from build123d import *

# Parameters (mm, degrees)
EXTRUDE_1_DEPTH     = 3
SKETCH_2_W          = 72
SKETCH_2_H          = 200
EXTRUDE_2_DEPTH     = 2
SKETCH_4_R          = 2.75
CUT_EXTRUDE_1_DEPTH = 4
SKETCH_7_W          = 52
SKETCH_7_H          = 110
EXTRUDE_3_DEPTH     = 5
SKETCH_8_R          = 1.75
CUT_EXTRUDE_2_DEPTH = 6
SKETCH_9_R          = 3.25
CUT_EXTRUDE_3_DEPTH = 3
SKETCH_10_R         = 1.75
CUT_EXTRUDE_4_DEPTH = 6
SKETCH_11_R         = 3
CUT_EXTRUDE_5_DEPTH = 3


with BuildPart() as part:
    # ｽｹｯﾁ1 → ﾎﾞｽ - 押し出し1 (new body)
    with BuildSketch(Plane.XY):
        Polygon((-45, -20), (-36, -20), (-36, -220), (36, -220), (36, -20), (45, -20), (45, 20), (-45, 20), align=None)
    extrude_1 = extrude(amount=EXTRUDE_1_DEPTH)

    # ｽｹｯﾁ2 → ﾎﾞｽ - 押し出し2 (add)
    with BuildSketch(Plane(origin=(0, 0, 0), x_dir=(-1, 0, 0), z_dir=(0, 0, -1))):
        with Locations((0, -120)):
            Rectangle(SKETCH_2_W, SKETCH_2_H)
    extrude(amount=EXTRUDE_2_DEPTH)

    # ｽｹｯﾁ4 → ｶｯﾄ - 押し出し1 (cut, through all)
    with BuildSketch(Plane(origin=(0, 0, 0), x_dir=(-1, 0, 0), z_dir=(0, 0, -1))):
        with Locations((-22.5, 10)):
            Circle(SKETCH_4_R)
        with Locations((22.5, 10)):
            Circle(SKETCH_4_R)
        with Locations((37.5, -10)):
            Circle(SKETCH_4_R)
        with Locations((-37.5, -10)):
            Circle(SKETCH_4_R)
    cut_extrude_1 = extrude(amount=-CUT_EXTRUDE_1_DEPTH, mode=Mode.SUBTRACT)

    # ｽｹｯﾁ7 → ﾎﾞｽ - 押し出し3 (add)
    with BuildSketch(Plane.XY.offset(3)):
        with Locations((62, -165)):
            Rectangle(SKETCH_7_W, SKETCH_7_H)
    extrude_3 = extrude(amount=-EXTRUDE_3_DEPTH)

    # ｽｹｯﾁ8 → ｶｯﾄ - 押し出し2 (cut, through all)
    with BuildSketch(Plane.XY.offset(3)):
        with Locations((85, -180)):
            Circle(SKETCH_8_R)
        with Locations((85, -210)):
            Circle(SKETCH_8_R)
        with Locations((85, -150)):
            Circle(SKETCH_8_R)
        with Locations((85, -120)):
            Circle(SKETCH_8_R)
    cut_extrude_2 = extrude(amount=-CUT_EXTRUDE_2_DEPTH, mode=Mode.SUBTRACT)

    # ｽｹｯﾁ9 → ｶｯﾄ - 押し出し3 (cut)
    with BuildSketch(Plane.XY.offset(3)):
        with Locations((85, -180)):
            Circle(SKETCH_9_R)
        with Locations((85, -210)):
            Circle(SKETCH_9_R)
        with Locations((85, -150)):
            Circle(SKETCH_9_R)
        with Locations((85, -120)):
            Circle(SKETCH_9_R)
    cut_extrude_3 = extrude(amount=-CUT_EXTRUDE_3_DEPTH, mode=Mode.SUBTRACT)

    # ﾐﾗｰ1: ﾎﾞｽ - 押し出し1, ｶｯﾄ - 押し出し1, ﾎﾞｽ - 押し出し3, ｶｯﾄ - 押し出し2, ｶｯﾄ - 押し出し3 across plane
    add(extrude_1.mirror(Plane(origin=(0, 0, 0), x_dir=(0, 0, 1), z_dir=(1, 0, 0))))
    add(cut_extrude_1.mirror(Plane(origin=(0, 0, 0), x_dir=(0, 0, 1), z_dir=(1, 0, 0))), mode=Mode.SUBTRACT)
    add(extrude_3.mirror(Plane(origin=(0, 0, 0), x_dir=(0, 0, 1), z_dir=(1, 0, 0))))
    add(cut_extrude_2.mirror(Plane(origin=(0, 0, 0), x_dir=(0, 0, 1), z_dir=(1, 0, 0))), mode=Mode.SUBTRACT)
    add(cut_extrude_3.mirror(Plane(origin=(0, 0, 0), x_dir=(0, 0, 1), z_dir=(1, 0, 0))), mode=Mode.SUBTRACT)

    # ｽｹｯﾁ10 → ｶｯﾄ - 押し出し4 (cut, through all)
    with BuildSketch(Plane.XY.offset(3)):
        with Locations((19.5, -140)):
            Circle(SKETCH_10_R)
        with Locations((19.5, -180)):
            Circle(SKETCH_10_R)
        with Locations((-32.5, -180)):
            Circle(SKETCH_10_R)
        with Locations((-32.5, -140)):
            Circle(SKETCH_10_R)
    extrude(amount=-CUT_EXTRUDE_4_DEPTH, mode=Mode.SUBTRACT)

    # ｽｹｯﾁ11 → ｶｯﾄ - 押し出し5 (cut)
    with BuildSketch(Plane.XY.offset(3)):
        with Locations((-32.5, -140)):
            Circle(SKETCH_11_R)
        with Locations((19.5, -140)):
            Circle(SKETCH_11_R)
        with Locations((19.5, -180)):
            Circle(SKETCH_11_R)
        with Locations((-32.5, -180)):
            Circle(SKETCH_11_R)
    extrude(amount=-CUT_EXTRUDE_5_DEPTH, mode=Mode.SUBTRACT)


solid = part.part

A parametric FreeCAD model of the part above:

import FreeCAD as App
import Part
import Sketcher
from FreeCAD import Vector

doc = App.newDocument("Part")
body = doc.addObject("PartDesign::Body", "Body")

sketch1 = body.newObject("Sketcher::SketchObject", "Sketch")
sketch1.AttachmentSupport = (doc.getObject("XY_Plane"), [""])
sketch1.MapMode = "FlatFace"
sketch1.addGeometry(Part.LineSegment(Vector(-45, -20, 0), Vector(-36, -20, 0)), False)
sketch1.addGeometry(Part.LineSegment(Vector(-36, -20, 0), Vector(-36, -220, 0)), False)
sketch1.addGeometry(Part.LineSegment(Vector(-36, -220, 0), Vector(36, -220, 0)), False)
sketch1.addGeometry(Part.LineSegment(Vector(36, -220, 0), Vector(36, -20, 0)), False)
sketch1.addGeometry(Part.LineSegment(Vector(36, -20, 0), Vector(45, -20, 0)), False)
sketch1.addGeometry(Part.LineSegment(Vector(45, -20, 0), Vector(45, 20, 0)), False)
sketch1.addGeometry(Part.LineSegment(Vector(45, 20, 0), Vector(-45, 20, 0)), False)
sketch1.addGeometry(Part.LineSegment(Vector(-45, 20, 0), Vector(-45, -20, 0)), False)
sketch1.addConstraint(Sketcher.Constraint("Coincident", 0, 2, 1, 1))
sketch1.addConstraint(Sketcher.Constraint("Coincident", 1, 2, 2, 1))
sketch1.addConstraint(Sketcher.Constraint("Coincident", 2, 2, 3, 1))
sketch1.addConstraint(Sketcher.Constraint("Coincident", 3, 2, 4, 1))
sketch1.addConstraint(Sketcher.Constraint("Coincident", 4, 2, 5, 1))
sketch1.addConstraint(Sketcher.Constraint("Coincident", 5, 2, 6, 1))
sketch1.addConstraint(Sketcher.Constraint("Coincident", 6, 2, 7, 1))
sketch1.addConstraint(Sketcher.Constraint("Coincident", 7, 2, 0, 1))
sketch1.addConstraint(Sketcher.Constraint("Horizontal", 0))
sketch1.addConstraint(Sketcher.Constraint("Vertical", 1))
sketch1.addConstraint(Sketcher.Constraint("Horizontal", 2))
sketch1.addConstraint(Sketcher.Constraint("Vertical", 3))
sketch1.addConstraint(Sketcher.Constraint("Horizontal", 4))
sketch1.addConstraint(Sketcher.Constraint("Vertical", 5))
sketch1.addConstraint(Sketcher.Constraint("Horizontal", 6))
sketch1.addConstraint(Sketcher.Constraint("Vertical", 7))
sketch1.addConstraint(Sketcher.Constraint("Symmetric", 4, 2, 6, 2, -1, 1))
sketch1.addConstraint(Sketcher.Constraint("Symmetric", 0, 2, 3, 2, -2))
sketch1.addConstraint(Sketcher.Constraint("DistanceX", 0, 1, 0, 2, 9.0))
sketch1.addConstraint(Sketcher.Constraint("DistanceX", 2, 1, 2, 2, 72.0))
sketch1.addConstraint(Sketcher.Constraint("DistanceY", 1, 2, 1, 1, 200.0))
sketch1.addConstraint(Sketcher.Constraint("DistanceY", 5, 1, 5, 2, 40.0))
pad1 = body.newObject("PartDesign::Pad", "Pad")
pad1.Profile = sketch1
pad1.Length = 3

sketch2 = body.newObject("Sketcher::SketchObject", "Sketch001")
sketch2.AttachmentSupport = (doc.getObject("XY_Plane"), [""])
sketch2.MapMode = "FlatFace"
sketch2.addGeometry(Part.LineSegment(Vector(36, -20, 0), Vector(36, -220, 0)), False)
sketch2.addGeometry(Part.LineSegment(Vector(36, -220, 0), Vector(-36, -220, 0)), False)
sketch2.addGeometry(Part.LineSegment(Vector(-36, -220, 0), Vector(-36, -20, 0)), False)
sketch2.addGeometry(Part.LineSegment(Vector(-36, -20, 0), Vector(36, -20, 0)), False)
sketch2.addConstraint(Sketcher.Constraint("Coincident", 0, 2, 1, 1))
sketch2.addConstraint(Sketcher.Constraint("Coincident", 1, 2, 2, 1))
sketch2.addConstraint(Sketcher.Constraint("Coincident", 2, 2, 3, 1))
sketch2.addConstraint(Sketcher.Constraint("Coincident", 3, 2, 0, 1))
sketch2.addConstraint(Sketcher.Constraint("Vertical", 0))
sketch2.addConstraint(Sketcher.Constraint("Horizontal", 1))
sketch2.addConstraint(Sketcher.Constraint("Vertical", 2))
sketch2.addConstraint(Sketcher.Constraint("Horizontal", 3))
sketch2.addConstraint(Sketcher.Constraint("DistanceX", 1, 2, 1, 1, 72.0))
sketch2.addConstraint(Sketcher.Constraint("DistanceY", 0, 2, 0, 1, 200.0))
sketch2.addConstraint(Sketcher.Constraint("DistanceX", -1, 1, 0, 2, 36.0))
sketch2.addConstraint(Sketcher.Constraint("DistanceY", 0, 2, -1, 1, 220.0))
pad2 = body.newObject("PartDesign::Pad", "Pad001")
pad2.Profile = sketch2
pad2.Length = 2
pad2.Reversed = True

sketch3 = body.newObject("Sketcher::SketchObject", "Sketch002")
sketch3.AttachmentSupport = (doc.getObject("XY_Plane"), [""])
sketch3.MapMode = "FlatFace"
sketch3.addGeometry(Part.Circle(Vector(22.5, 10, 0), Vector(0, 0, 1), 2.8), False)
sketch3.addGeometry(Part.Circle(Vector(-22.5, 10, 0), Vector(0, 0, 1), 2.8), False)
sketch3.addGeometry(Part.Circle(Vector(-37.5, -10, 0), Vector(0, 0, 1), 2.8), False)
sketch3.addGeometry(Part.Circle(Vector(37.5, -10, 0), Vector(0, 0, 1), 2.8), False)
sketch3.addConstraint(Sketcher.Constraint("Equal", 0, 1))
sketch3.addConstraint(Sketcher.Constraint("Equal", 1, 2))
sketch3.addConstraint(Sketcher.Constraint("Equal", 2, 3))
sketch3.addConstraint(Sketcher.Constraint("Symmetric", 0, 3, 1, 3, -2))
sketch3.addConstraint(Sketcher.Constraint("Symmetric", 2, 3, 3, 3, -2))
sketch3.addConstraint(Sketcher.Constraint("Diameter", 0, 5.5))
sketch3.addConstraint(Sketcher.Constraint("DistanceY", -1, 1, 0, 3, 10.0))
sketch3.addConstraint(Sketcher.Constraint("DistanceY", 2, 3, -1, 1, 10.0))
sketch3.addConstraint(Sketcher.Constraint("DistanceX", 1, 3, 0, 3, 45.0))
sketch3.addConstraint(Sketcher.Constraint("DistanceX", 2, 3, 1, 3, 15.0))
pocket1 = body.newObject("PartDesign::Pocket", "Pocket")
pocket1.Profile = sketch3
pocket1.Type = "ThroughAll"
pocket1.Reversed = True

sketch4 = body.newObject("Sketcher::SketchObject", "Sketch003")
sketch4.AttachmentSupport = (doc.getObject("XY_Plane"), [""])
sketch4.MapMode = "FlatFace"
sketch4.AttachmentOffset = App.Placement(Vector(0, 0, 3), App.Rotation())
sketch4.addGeometry(Part.LineSegment(Vector(36, -110, 0), Vector(36, -220, 0)), False)
sketch4.addGeometry(Part.LineSegment(Vector(36, -220, 0), Vector(88, -220, 0)), False)
sketch4.addGeometry(Part.LineSegment(Vector(88, -220, 0), Vector(88, -110, 0)), False)
sketch4.addGeometry(Part.LineSegment(Vector(88, -110, 0), Vector(36, -110, 0)), False)
sketch4.addConstraint(Sketcher.Constraint("Coincident", 0, 2, 1, 1))
sketch4.addConstraint(Sketcher.Constraint("Coincident", 1, 2, 2, 1))
sketch4.addConstraint(Sketcher.Constraint("Coincident", 2, 2, 3, 1))
sketch4.addConstraint(Sketcher.Constraint("Coincident", 3, 2, 0, 1))
sketch4.addConstraint(Sketcher.Constraint("Vertical", 0))
sketch4.addConstraint(Sketcher.Constraint("Horizontal", 1))
sketch4.addConstraint(Sketcher.Constraint("Vertical", 2))
sketch4.addConstraint(Sketcher.Constraint("Horizontal", 3))
sketch4.addConstraint(Sketcher.Constraint("DistanceX", 1, 1, 1, 2, 52.0))
sketch4.addConstraint(Sketcher.Constraint("DistanceY", 0, 2, 0, 1, 110.0))
sketch4.addConstraint(Sketcher.Constraint("DistanceX", -1, 1, 0, 2, 36.0))
sketch4.addConstraint(Sketcher.Constraint("DistanceY", 0, 2, -1, 1, 220.0))
pad3 = body.newObject("PartDesign::Pad", "Pad002")
pad3.Profile = sketch4
pad3.Length = 5
pad3.Reversed = True

sketch5 = body.newObject("Sketcher::SketchObject", "Sketch004")
sketch5.AttachmentSupport = (doc.getObject("XY_Plane"), [""])
sketch5.MapMode = "FlatFace"
sketch5.AttachmentOffset = App.Placement(Vector(0, 0, 3), App.Rotation())
sketch5.addGeometry(Part.Circle(Vector(85, -180, 0), Vector(0, 0, 1), 1.8), False)
sketch5.addGeometry(Part.Circle(Vector(85, -210, 0), Vector(0, 0, 1), 1.8), False)
sketch5.addGeometry(Part.Circle(Vector(85, -150, 0), Vector(0, 0, 1), 1.8), False)
sketch5.addGeometry(Part.Circle(Vector(85, -120, 0), Vector(0, 0, 1), 1.8), False)
sketch5.addConstraint(Sketcher.Constraint("Equal", 0, 1))
sketch5.addConstraint(Sketcher.Constraint("Equal", 1, 2))
sketch5.addConstraint(Sketcher.Constraint("Equal", 2, 3))
sketch5.addConstraint(Sketcher.Constraint("Vertical", 0, 3, 1, 3))
sketch5.addConstraint(Sketcher.Constraint("Vertical", 1, 3, 2, 3))
sketch5.addConstraint(Sketcher.Constraint("Vertical", 2, 3, 3, 3))
sketch5.addConstraint(Sketcher.Constraint("Diameter", 0, 3.5))
sketch5.addConstraint(Sketcher.Constraint("DistanceX", -1, 1, 0, 3, 85.0))
sketch5.addConstraint(Sketcher.Constraint("DistanceY", 0, 3, -1, 1, 180.0))
sketch5.addConstraint(Sketcher.Constraint("DistanceY", 1, 3, -1, 1, 210.0))
sketch5.addConstraint(Sketcher.Constraint("DistanceY", 2, 3, -1, 1, 150.0))
sketch5.addConstraint(Sketcher.Constraint("DistanceY", 3, 3, -1, 1, 120.0))
pocket2 = body.newObject("PartDesign::Pocket", "Pocket001")
pocket2.Profile = sketch5
pocket2.Type = "ThroughAll"

sketch6 = body.newObject("Sketcher::SketchObject", "Sketch005")
sketch6.AttachmentSupport = (doc.getObject("XY_Plane"), [""])
sketch6.MapMode = "FlatFace"
sketch6.AttachmentOffset = App.Placement(Vector(0, 0, 3), App.Rotation())
sketch6.addGeometry(Part.Circle(Vector(85, -180, 0), Vector(0, 0, 1), 3.2), False)
sketch6.addGeometry(Part.Circle(Vector(85, -210, 0), Vector(0, 0, 1), 3.2), False)
sketch6.addGeometry(Part.Circle(Vector(85, -150, 0), Vector(0, 0, 1), 3.2), False)
sketch6.addGeometry(Part.Circle(Vector(85, -120, 0), Vector(0, 0, 1), 3.2), False)
sketch6.addConstraint(Sketcher.Constraint("Equal", 0, 1))
sketch6.addConstraint(Sketcher.Constraint("Equal", 1, 2))
sketch6.addConstraint(Sketcher.Constraint("Equal", 2, 3))
sketch6.addConstraint(Sketcher.Constraint("Vertical", 0, 3, 1, 3))
sketch6.addConstraint(Sketcher.Constraint("Vertical", 1, 3, 2, 3))
sketch6.addConstraint(Sketcher.Constraint("Vertical", 2, 3, 3, 3))
sketch6.addConstraint(Sketcher.Constraint("Diameter", 0, 6.5))
sketch6.addConstraint(Sketcher.Constraint("DistanceX", -1, 1, 0, 3, 85.0))
sketch6.addConstraint(Sketcher.Constraint("DistanceY", 0, 3, -1, 1, 180.0))
sketch6.addConstraint(Sketcher.Constraint("DistanceY", 1, 3, -1, 1, 210.0))
sketch6.addConstraint(Sketcher.Constraint("DistanceY", 2, 3, -1, 1, 150.0))
sketch6.addConstraint(Sketcher.Constraint("DistanceY", 3, 3, -1, 1, 120.0))
pocket3 = body.newObject("PartDesign::Pocket", "Pocket002")
pocket3.Profile = sketch6
pocket3.Length = 3
doc.recompute()

mirrored = body.newObject("PartDesign::Mirrored", "Mirrored")
mirrored.Originals = [pad1, pocket1, pad3, pocket2, pocket3]
mirrored.MirrorPlane = (doc.getObject("YZ_Plane"), [""])
body.Tip = mirrored

sketch7 = body.newObject("Sketcher::SketchObject", "Sketch006")
sketch7.AttachmentSupport = (doc.getObject("XY_Plane"), [""])
sketch7.MapMode = "FlatFace"
sketch7.AttachmentOffset = App.Placement(Vector(0, 0, 3), App.Rotation())
sketch7.addGeometry(Part.Circle(Vector(19.5, -140, 0), Vector(0, 0, 1), 1.8), False)
sketch7.addGeometry(Part.Circle(Vector(19.5, -180, 0), Vector(0, 0, 1), 1.8), False)
sketch7.addGeometry(Part.Circle(Vector(-32.5, -180, 0), Vector(0, 0, 1), 1.8), False)
sketch7.addGeometry(Part.Circle(Vector(-32.5, -140, 0), Vector(0, 0, 1), 1.8), False)
sketch7.addConstraint(Sketcher.Constraint("Equal", 0, 1))
sketch7.addConstraint(Sketcher.Constraint("Equal", 1, 2))
sketch7.addConstraint(Sketcher.Constraint("Equal", 2, 3))
sketch7.addConstraint(Sketcher.Constraint("Horizontal", 1, 3, 2, 3))
sketch7.addConstraint(Sketcher.Constraint("Horizontal", 0, 3, 3, 3))
sketch7.addConstraint(Sketcher.Constraint("Vertical", 0, 3, 1, 3))
sketch7.addConstraint(Sketcher.Constraint("Vertical", 2, 3, 3, 3))
sketch7.addConstraint(Sketcher.Constraint("Diameter", 0, 3.5))
sketch7.addConstraint(Sketcher.Constraint("DistanceY", 0, 3, -1, 1, 140.0))
sketch7.addConstraint(Sketcher.Constraint("DistanceY", 1, 3, -1, 1, 180.0))
sketch7.addConstraint(Sketcher.Constraint("DistanceX", 2, 3, 1, 3, 52.0))
sketch7.addConstraint(Sketcher.Constraint("DistanceX", -1, 1, 0, 3, 19.5))
pocket4 = body.newObject("PartDesign::Pocket", "Pocket003")
pocket4.Profile = sketch7
pocket4.Type = "ThroughAll"

sketch8 = body.newObject("Sketcher::SketchObject", "Sketch007")
sketch8.AttachmentSupport = (doc.getObject("XY_Plane"), [""])
sketch8.MapMode = "FlatFace"
sketch8.AttachmentOffset = App.Placement(Vector(0, 0, 3), App.Rotation())
sketch8.addGeometry(Part.Circle(Vector(-32.5, -140, 0), Vector(0, 0, 1), 3), False)
sketch8.addGeometry(Part.Circle(Vector(19.5, -140, 0), Vector(0, 0, 1), 3), False)
sketch8.addGeometry(Part.Circle(Vector(19.5, -180, 0), Vector(0, 0, 1), 3), False)
sketch8.addGeometry(Part.Circle(Vector(-32.5, -180, 0), Vector(0, 0, 1), 3), False)
sketch8.addConstraint(Sketcher.Constraint("Equal", 0, 1))
sketch8.addConstraint(Sketcher.Constraint("Equal", 1, 2))
sketch8.addConstraint(Sketcher.Constraint("Equal", 2, 3))
sketch8.addConstraint(Sketcher.Constraint("Horizontal", 0, 3, 1, 3))
sketch8.addConstraint(Sketcher.Constraint("Horizontal", 2, 3, 3, 3))
sketch8.addConstraint(Sketcher.Constraint("Vertical", 1, 3, 2, 3))
sketch8.addConstraint(Sketcher.Constraint("Vertical", 0, 3, 3, 3))
sketch8.addConstraint(Sketcher.Constraint("Diameter", 0, 6.0))
sketch8.addConstraint(Sketcher.Constraint("DistanceY", 0, 3, -1, 1, 140.0))
sketch8.addConstraint(Sketcher.Constraint("DistanceY", 2, 3, -1, 1, 180.0))
sketch8.addConstraint(Sketcher.Constraint("DistanceX", 0, 3, 1, 3, 52.0))
sketch8.addConstraint(Sketcher.Constraint("DistanceX", 0, 3, -1, 1, 32.5))
pocket5 = body.newObject("PartDesign::Pocket", "Pocket004")
pocket5.Profile = sketch8
pocket5.Length = 3

doc.recompute()
